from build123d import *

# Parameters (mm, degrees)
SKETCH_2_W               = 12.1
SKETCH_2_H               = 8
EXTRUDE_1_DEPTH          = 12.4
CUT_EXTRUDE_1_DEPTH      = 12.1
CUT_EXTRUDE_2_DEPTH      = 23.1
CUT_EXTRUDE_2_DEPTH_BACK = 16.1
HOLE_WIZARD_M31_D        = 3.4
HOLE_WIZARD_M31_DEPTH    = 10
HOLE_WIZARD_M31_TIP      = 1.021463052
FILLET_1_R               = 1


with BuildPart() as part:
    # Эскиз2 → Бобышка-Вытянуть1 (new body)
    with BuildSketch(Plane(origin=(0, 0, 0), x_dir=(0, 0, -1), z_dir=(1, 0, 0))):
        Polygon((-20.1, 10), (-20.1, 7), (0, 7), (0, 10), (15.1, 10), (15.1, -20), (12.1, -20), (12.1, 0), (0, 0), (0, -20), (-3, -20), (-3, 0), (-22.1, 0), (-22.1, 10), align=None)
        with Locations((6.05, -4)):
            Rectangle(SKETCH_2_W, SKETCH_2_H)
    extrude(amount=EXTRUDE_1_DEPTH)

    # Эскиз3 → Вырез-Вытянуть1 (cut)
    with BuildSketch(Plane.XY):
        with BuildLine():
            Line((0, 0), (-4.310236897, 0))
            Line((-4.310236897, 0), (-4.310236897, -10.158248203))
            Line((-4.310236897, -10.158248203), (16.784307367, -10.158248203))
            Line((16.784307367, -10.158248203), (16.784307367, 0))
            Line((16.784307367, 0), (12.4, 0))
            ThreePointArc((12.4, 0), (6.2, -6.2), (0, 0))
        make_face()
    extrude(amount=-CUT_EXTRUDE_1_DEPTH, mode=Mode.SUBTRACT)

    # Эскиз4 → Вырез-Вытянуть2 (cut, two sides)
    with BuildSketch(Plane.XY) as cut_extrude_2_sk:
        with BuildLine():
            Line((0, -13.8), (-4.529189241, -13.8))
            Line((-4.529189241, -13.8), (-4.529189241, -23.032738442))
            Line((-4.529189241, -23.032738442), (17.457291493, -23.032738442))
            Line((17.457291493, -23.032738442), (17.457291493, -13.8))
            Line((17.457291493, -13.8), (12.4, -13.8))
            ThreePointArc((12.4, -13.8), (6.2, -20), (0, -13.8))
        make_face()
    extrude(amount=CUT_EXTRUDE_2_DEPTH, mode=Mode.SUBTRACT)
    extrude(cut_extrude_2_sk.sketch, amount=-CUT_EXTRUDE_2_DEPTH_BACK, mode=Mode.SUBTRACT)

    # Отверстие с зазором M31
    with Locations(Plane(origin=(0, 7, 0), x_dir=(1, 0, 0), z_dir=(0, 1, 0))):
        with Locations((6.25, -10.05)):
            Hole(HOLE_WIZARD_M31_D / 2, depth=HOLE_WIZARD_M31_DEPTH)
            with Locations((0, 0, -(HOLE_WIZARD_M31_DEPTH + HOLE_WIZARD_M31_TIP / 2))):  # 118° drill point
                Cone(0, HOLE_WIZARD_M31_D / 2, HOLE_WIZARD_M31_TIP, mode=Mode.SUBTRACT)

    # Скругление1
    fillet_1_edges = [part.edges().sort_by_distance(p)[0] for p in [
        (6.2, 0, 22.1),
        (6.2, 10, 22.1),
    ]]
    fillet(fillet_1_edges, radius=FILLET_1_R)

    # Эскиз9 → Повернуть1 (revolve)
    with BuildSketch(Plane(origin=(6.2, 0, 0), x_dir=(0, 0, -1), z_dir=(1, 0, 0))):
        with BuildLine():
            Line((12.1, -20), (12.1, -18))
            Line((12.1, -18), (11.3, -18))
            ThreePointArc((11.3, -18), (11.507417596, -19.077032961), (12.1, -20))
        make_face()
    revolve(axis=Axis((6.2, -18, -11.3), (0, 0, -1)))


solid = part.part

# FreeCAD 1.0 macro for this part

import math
import FreeCAD as App
import Part
import Sketcher
Q = App.Units.Quantity


def edges_at(feature, points):
    """Names of the edges that pass closest to the given points."""
    edges = feature.Shape.Edges
    near = lambda p: min(range(len(edges)), key=lambda i: edges[i].distToShape(Part.Vertex(*p))[0])
    return sorted({f"Edge{near(p) + 1}" for p in points})

doc = App.newDocument("Part")
body = doc.addObject("PartDesign::Body", "Body")

sketch1 = body.newObject("Sketcher::SketchObject", "Sketch")
sketch1.AttachmentSupport = (doc.getObject("YZ_Plane"), [""])
sketch1.MapMode = "FlatFace"
sketch1.addGeometry([
    Part.LineSegment(App.Vector(7, 20.1, 0), App.Vector(10, 20.1, 0)),
    Part.LineSegment(App.Vector(10, 20.1, 0), App.Vector(10, 22.1, 0)),
    Part.LineSegment(App.Vector(10, 22.1, 0), App.Vector(0, 22.1, 0)),
    Part.LineSegment(App.Vector(0, 22.1, 0), App.Vector(0, 3, 0)),
    Part.LineSegment(App.Vector(0, 3, 0), App.Vector(-20, 3, 0)),
    Part.LineSegment(App.Vector(-20, 3, 0), App.Vector(-20, 0, 0)),
    Part.LineSegment(App.Vector(-20, 0, 0), App.Vector(-8, 0, 0)),
    Part.LineSegment(App.Vector(-8, 0, 0), App.Vector(-8, -12.1, 0)),
    Part.LineSegment(App.Vector(-8, -12.1, 0), App.Vector(-20, -12.1, 0)),
    Part.LineSegment(App.Vector(-20, -12.1, 0), App.Vector(-20, -15.1, 0)),
    Part.LineSegment(App.Vector(-20, -15.1, 0), App.Vector(10, -15.1, 0)),
    Part.LineSegment(App.Vector(10, -15.1, 0), App.Vector(10, 0, 0)),
    Part.LineSegment(App.Vector(10, 0, 0), App.Vector(7, 0, 0)),
    Part.LineSegment(App.Vector(7, 0, 0), App.Vector(7, 20.1, 0)),
], False)
sketch1.addConstraint([
    Sketcher.Constraint("Coincident", 0, 2, 1, 1),
    Sketcher.Constraint("Coincident", 1, 2, 2, 1),
    Sketcher.Constraint("Coincident", 2, 2, 3, 1),
    Sketcher.Constraint("Coincident", 3, 2, 4, 1),
    Sketcher.Constraint("Coincident", 4, 2, 5, 1),
    Sketcher.Constraint("Coincident", 5, 2, 6, 1),
    Sketcher.Constraint("Coincident", 6, 2, 7, 1),
    Sketcher.Constraint("Coincident", 7, 2, 8, 1),
    Sketcher.Constraint("Coincident", 8, 2, 9, 1),
    Sketcher.Constraint("Coincident", 9, 2, 10, 1),
    Sketcher.Constraint("Coincident", 10, 2, 11, 1),
    Sketcher.Constraint("Coincident", 11, 2, 12, 1),
    Sketcher.Constraint("Coincident", 12, 2, 13, 1),
    Sketcher.Constraint("Coincident", 13, 2, 0, 1),
    Sketcher.Constraint("Horizontal", 0),
    Sketcher.Constraint("Vertical", 1),
    Sketcher.Constraint("Horizontal", 2),
    Sketcher.Constraint("Vertical", 3),
    Sketcher.Constraint("Horizontal", 4),
    Sketcher.Constraint("Vertical", 5),
    Sketcher.Constraint("Horizontal", 6),
    Sketcher.Constraint("Vertical", 7),
    Sketcher.Constraint("Horizontal", 8),
    Sketcher.Constraint("Vertical", 9),
    Sketcher.Constraint("Horizontal", 10),
    Sketcher.Constraint("Vertical", 11),
    Sketcher.Constraint("Horizontal", 12),
    Sketcher.Constraint("Vertical", 13),
    Sketcher.Constraint("PointOnObject", 2, 2, -2),
    Sketcher.Constraint("PointOnObject", 5, 2, -1),
    Sketcher.Constraint("PointOnObject", 11, 2, -1),
    Sketcher.Constraint("Vertical", 5, 2, 8, 2),
    Sketcher.Constraint("Vertical", 1, 2, 10, 2),
    Sketcher.Constraint("Equal", 12, 5),
    Sketcher.Constraint("Equal", 5, 9),
    Sketcher.Constraint("DistanceX", 0, 1, 0, 2, Q("3 mm")),
    Sketcher.Constraint("DistanceX", 2, 2, 2, 1, Q("10 mm")),
    Sketcher.Constraint("DistanceX", 4, 2, 4, 1, Q("20 mm")),
    Sketcher.Constraint("DistanceX", 6, 1, 6, 2, Q("12 mm")),
    Sketcher.Constraint("DistanceY", 1, 1, 1, 2, Q("2 mm")),
    Sketcher.Constraint("DistanceY", 3, 2, 3, 1, Q("19.1 mm")),
    Sketcher.Constraint("DistanceY", 7, 2, 7, 1, Q("12.1 mm")),
])
pad1 = body.newObject("PartDesign::Pad", "Pad")
pad1.Profile = sketch1
pad1.Length = 12.4

sketch2 = body.newObject("Sketcher::SketchObject", "Sketch001")
sketch2.AttachmentSupport = (doc.getObject("XY_Plane"), [""])
sketch2.MapMode = "FlatFace"
sketch2.addGeometry([
    Part.LineSegment(App.Vector(0, 0, 0), App.Vector(-4.310237, 0, 0)),
    Part.LineSegment(App.Vector(-4.310237, 0, 0), App.Vector(-4.310237, -10.158248, 0)),
    Part.LineSegment(App.Vector(-4.310237, -10.158248, 0), App.Vector(16.784307, -10.158248, 0)),
    Part.LineSegment(App.Vector(16.784307, -10.158248, 0), App.Vector(16.784307, 0, 0)),
    Part.LineSegment(App.Vector(16.784307, 0, 0), App.Vector(12.4, 0, 0)),
    Part.ArcOfCircle(Part.Circle(App.Vector(6.2, 0, 0), App.Vector(0, 0, 1), 6.2), math.radians(180), math.radians(360)),
], False)
sketch2.addConstraint([
    Sketcher.Constraint("Coincident", 0, 2, 1, 1),
    Sketcher.Constraint("Coincident", 1, 2, 2, 1),
    Sketcher.Constraint("Coincident", 2, 2, 3, 1),
    Sketcher.Constraint("Coincident", 3, 2, 4, 1),
    Sketcher.Constraint("Coincident", 4, 2, 5, 2),
    Sketcher.Constraint("Coincident", 5, 1, 0, 1),
    Sketcher.Constraint("Horizontal", 0),
    Sketcher.Constraint("Vertical", 1),
    Sketcher.Constraint("Horizontal", 2),
    Sketcher.Constraint("Vertical", 3),
    Sketcher.Constraint("Horizontal", 4),
    Sketcher.Constraint("Coincident", 5, 1, -1, 1),
    Sketcher.Constraint("PointOnObject", 5, 3, -1),
    Sketcher.Constraint("PointOnObject", 3, 2, -1),
    Sketcher.Constraint("Radius", 5, Q("6.2 mm")),
    Sketcher.Constraint("DistanceY", 1, 2, 1, 1, Q("10.158248 mm")),
    Sketcher.Constraint("DistanceX", 0, 2, 0, 1, Q("4.310237 mm")),
    Sketcher.Constraint("DistanceX", 2, 1, 2, 2, Q("21.094544 mm")),
])
pocket1 = body.newObject("PartDesign::Pocket", "Pocket")
pocket1.Profile = sketch2
pocket1.Length = 12.1

sketch3 = body.newObject("Sketcher::SketchObject", "Sketch002")
sketch3.AttachmentSupport = (doc.getObject("XY_Plane"), [""])
sketch3.MapMode = "FlatFace"
sketch3.addGeometry([
    Part.LineSegment(App.Vector(0, -13.8, 0), App.Vector(-4.529189, -13.8, 0)),
    Part.LineSegment(App.Vector(-4.529189, -13.8, 0), App.Vector(-4.529189, -23.032738, 0)),
    Part.LineSegment(App.Vector(-4.529189, -23.032738, 0), App.Vector(17.457291, -23.032738, 0)),
    Part.LineSegment(App.Vector(17.457291, -23.032738, 0), App.Vector(17.457291, -13.8, 0)),
    Part.LineSegment(App.Vector(17.457291, -13.8, 0), App.Vector(12.4, -13.8, 0)),
    Part.ArcOfCircle(Part.Circle(App.Vector(6.2, -13.8, 0), App.Vector(0, 0, 1), 6.2), math.radians(180), math.radians(360)),
], False)
sketch3.addConstraint([
    Sketcher.Constraint("Coincident", 0, 2, 1, 1),
    Sketcher.Constraint("Coincident", 1, 2, 2, 1),
    Sketcher.Constraint("Coincident", 2, 2, 3, 1),
    Sketcher.Constraint("Coincident", 3, 2, 4, 1),
    Sketcher.Constraint("Coincident", 4, 2, 5, 2),
    Sketcher.Constraint("Coincident", 5, 1, 0, 1),
    Sketcher.Constraint("Horizontal", 0),
    Sketcher.Constraint("Vertical", 1),
    Sketcher.Constraint("Horizontal", 2),
    Sketcher.Constraint("Vertical", 3),
    Sketcher.Constraint("Horizontal", 4),
    Sketcher.Constraint("PointOnObject", 5, 1, -2),
    Sketcher.Constraint("Horizontal", 5, 3, 0, 2),
    Sketcher.Constraint("Horizontal", 0, 2, 3, 2),
    Sketcher.Constraint("Radius", 5, Q("6.2 mm")),
    Sketcher.Constraint("DistanceY", 5, 3, -1, 1, Q("13.8 mm")),
    Sketcher.Constraint("DistanceX", 0, 2, 0, 1, Q("4.529189 mm")),
    Sketcher.Constraint("DistanceX", 2, 1, 2, 2, Q("21.986481 mm")),
    Sketcher.Constraint("DistanceY", 1, 2, 1, 1, Q("9.232738 mm")),
])
pocket2 = body.newObject("PartDesign::Pocket", "Pocket001")
pocket2.Profile = sketch3
pocket2.Type = "ThroughAll"
pocket2.Midplane = True

sketch4 = body.newObject("Sketcher::SketchObject", "Sketch003")
sketch4.AttachmentSupport = (doc.getObject("XZ_Plane"), [""])
sketch4.MapMode = "FlatFace"
sketch4.AttachmentOffset = App.Placement(App.Vector(0, 0, -7), App.Rotation())
sketch4.addGeometry(Part.Circle(App.Vector(6.25, 10.05, 0), App.Vector(0, 0, 1), 1.7), False)
sketch4.addConstraint([
    Sketcher.Constraint("Diameter", 0, Q("3.4 mm")),
    Sketcher.Constraint("DistanceX", -1, 1, 0, 3, Q("6.25 mm")),
    Sketcher.Constraint("DistanceY", -1, 1, 0, 3, Q("10.05 mm")),
])
doc.recompute()
hole = body.newObject("PartDesign::Hole", "Hole")
hole.Profile = sketch4
hole.ThreadType = "None"
hole.Diameter = 3.4
hole.DepthType = "Dimension"
hole.Depth = 10
hole.DrillPoint = "Angled"
hole.DrillPointAngle = 118
hole.Reversed = True
doc.recompute()

fillet = body.newObject("PartDesign::Fillet", "Fillet")
fillet.Base = (hole, edges_at(hole, [(6.2, 0, 22.1), (6.2, 10, 22.1)]))
fillet.Radius = 1

sketch5 = body.newObject("Sketcher::SketchObject", "Sketch004")
sketch5.AttachmentSupport = (doc.getObject("YZ_Plane"), [""])
sketch5.MapMode = "FlatFace"
sketch5.AttachmentOffset = App.Placement(App.Vector(0, 0, 6.2), App.Rotation())
sketch5.addGeometry([
    Part.LineSegment(App.Vector(-20, -12.1, 0), App.Vector(-18, -12.1, 0)),
    Part.LineSegment(App.Vector(-18, -12.1, 0), App.Vector(-18, -11.3, 0)),
    Part.ArcOfCircle(Part.Circle(App.Vector(-18, -14.2, 0), App.Vector(0, 0, 1), 2.9), math.radians(90), math.radians(133.602819)),
], False)
sketch5.addGeometry(Part.LineSegment(App.Vector(-18, -11.3, 0), App.Vector(-18, -14.2, 0)), True)
sketch5.addConstraint([
    Sketcher.Constraint("Coincident", 0, 2, 1, 1),
    Sketcher.Constraint("Coincident", 1, 2, 2, 1),
    Sketcher.Constraint("Coincident", 2, 2, 0, 1),
    Sketcher.Constraint("Horizontal", 0),
    Sketcher.Constraint("Vertical", 1),
    Sketcher.Constraint("Vertical", 3),
    Sketcher.Constraint("Coincident", 3, 1, 1, 2),
    Sketcher.Constraint("Coincident", 3, 2, 2, 3),
    Sketcher.Constraint("Radius", 2, Q("2.9 mm")),
    Sketcher.Constraint("DistanceX", 0, 1, 0, 2, Q("2 mm")),
    Sketcher.Constraint("DistanceX", 2, 3, -1, 1, Q("18 mm")),
    Sketcher.Constraint("DistanceY", 2, 3, -1, 1, Q("14.2 mm")),
])
revolution = body.newObject("PartDesign::Revolution", "Revolution")
revolution.Profile = sketch5
revolution.ReferenceAxis = (sketch5, ["Axis0"])
revolution.Angle = 360

doc.recompute()
